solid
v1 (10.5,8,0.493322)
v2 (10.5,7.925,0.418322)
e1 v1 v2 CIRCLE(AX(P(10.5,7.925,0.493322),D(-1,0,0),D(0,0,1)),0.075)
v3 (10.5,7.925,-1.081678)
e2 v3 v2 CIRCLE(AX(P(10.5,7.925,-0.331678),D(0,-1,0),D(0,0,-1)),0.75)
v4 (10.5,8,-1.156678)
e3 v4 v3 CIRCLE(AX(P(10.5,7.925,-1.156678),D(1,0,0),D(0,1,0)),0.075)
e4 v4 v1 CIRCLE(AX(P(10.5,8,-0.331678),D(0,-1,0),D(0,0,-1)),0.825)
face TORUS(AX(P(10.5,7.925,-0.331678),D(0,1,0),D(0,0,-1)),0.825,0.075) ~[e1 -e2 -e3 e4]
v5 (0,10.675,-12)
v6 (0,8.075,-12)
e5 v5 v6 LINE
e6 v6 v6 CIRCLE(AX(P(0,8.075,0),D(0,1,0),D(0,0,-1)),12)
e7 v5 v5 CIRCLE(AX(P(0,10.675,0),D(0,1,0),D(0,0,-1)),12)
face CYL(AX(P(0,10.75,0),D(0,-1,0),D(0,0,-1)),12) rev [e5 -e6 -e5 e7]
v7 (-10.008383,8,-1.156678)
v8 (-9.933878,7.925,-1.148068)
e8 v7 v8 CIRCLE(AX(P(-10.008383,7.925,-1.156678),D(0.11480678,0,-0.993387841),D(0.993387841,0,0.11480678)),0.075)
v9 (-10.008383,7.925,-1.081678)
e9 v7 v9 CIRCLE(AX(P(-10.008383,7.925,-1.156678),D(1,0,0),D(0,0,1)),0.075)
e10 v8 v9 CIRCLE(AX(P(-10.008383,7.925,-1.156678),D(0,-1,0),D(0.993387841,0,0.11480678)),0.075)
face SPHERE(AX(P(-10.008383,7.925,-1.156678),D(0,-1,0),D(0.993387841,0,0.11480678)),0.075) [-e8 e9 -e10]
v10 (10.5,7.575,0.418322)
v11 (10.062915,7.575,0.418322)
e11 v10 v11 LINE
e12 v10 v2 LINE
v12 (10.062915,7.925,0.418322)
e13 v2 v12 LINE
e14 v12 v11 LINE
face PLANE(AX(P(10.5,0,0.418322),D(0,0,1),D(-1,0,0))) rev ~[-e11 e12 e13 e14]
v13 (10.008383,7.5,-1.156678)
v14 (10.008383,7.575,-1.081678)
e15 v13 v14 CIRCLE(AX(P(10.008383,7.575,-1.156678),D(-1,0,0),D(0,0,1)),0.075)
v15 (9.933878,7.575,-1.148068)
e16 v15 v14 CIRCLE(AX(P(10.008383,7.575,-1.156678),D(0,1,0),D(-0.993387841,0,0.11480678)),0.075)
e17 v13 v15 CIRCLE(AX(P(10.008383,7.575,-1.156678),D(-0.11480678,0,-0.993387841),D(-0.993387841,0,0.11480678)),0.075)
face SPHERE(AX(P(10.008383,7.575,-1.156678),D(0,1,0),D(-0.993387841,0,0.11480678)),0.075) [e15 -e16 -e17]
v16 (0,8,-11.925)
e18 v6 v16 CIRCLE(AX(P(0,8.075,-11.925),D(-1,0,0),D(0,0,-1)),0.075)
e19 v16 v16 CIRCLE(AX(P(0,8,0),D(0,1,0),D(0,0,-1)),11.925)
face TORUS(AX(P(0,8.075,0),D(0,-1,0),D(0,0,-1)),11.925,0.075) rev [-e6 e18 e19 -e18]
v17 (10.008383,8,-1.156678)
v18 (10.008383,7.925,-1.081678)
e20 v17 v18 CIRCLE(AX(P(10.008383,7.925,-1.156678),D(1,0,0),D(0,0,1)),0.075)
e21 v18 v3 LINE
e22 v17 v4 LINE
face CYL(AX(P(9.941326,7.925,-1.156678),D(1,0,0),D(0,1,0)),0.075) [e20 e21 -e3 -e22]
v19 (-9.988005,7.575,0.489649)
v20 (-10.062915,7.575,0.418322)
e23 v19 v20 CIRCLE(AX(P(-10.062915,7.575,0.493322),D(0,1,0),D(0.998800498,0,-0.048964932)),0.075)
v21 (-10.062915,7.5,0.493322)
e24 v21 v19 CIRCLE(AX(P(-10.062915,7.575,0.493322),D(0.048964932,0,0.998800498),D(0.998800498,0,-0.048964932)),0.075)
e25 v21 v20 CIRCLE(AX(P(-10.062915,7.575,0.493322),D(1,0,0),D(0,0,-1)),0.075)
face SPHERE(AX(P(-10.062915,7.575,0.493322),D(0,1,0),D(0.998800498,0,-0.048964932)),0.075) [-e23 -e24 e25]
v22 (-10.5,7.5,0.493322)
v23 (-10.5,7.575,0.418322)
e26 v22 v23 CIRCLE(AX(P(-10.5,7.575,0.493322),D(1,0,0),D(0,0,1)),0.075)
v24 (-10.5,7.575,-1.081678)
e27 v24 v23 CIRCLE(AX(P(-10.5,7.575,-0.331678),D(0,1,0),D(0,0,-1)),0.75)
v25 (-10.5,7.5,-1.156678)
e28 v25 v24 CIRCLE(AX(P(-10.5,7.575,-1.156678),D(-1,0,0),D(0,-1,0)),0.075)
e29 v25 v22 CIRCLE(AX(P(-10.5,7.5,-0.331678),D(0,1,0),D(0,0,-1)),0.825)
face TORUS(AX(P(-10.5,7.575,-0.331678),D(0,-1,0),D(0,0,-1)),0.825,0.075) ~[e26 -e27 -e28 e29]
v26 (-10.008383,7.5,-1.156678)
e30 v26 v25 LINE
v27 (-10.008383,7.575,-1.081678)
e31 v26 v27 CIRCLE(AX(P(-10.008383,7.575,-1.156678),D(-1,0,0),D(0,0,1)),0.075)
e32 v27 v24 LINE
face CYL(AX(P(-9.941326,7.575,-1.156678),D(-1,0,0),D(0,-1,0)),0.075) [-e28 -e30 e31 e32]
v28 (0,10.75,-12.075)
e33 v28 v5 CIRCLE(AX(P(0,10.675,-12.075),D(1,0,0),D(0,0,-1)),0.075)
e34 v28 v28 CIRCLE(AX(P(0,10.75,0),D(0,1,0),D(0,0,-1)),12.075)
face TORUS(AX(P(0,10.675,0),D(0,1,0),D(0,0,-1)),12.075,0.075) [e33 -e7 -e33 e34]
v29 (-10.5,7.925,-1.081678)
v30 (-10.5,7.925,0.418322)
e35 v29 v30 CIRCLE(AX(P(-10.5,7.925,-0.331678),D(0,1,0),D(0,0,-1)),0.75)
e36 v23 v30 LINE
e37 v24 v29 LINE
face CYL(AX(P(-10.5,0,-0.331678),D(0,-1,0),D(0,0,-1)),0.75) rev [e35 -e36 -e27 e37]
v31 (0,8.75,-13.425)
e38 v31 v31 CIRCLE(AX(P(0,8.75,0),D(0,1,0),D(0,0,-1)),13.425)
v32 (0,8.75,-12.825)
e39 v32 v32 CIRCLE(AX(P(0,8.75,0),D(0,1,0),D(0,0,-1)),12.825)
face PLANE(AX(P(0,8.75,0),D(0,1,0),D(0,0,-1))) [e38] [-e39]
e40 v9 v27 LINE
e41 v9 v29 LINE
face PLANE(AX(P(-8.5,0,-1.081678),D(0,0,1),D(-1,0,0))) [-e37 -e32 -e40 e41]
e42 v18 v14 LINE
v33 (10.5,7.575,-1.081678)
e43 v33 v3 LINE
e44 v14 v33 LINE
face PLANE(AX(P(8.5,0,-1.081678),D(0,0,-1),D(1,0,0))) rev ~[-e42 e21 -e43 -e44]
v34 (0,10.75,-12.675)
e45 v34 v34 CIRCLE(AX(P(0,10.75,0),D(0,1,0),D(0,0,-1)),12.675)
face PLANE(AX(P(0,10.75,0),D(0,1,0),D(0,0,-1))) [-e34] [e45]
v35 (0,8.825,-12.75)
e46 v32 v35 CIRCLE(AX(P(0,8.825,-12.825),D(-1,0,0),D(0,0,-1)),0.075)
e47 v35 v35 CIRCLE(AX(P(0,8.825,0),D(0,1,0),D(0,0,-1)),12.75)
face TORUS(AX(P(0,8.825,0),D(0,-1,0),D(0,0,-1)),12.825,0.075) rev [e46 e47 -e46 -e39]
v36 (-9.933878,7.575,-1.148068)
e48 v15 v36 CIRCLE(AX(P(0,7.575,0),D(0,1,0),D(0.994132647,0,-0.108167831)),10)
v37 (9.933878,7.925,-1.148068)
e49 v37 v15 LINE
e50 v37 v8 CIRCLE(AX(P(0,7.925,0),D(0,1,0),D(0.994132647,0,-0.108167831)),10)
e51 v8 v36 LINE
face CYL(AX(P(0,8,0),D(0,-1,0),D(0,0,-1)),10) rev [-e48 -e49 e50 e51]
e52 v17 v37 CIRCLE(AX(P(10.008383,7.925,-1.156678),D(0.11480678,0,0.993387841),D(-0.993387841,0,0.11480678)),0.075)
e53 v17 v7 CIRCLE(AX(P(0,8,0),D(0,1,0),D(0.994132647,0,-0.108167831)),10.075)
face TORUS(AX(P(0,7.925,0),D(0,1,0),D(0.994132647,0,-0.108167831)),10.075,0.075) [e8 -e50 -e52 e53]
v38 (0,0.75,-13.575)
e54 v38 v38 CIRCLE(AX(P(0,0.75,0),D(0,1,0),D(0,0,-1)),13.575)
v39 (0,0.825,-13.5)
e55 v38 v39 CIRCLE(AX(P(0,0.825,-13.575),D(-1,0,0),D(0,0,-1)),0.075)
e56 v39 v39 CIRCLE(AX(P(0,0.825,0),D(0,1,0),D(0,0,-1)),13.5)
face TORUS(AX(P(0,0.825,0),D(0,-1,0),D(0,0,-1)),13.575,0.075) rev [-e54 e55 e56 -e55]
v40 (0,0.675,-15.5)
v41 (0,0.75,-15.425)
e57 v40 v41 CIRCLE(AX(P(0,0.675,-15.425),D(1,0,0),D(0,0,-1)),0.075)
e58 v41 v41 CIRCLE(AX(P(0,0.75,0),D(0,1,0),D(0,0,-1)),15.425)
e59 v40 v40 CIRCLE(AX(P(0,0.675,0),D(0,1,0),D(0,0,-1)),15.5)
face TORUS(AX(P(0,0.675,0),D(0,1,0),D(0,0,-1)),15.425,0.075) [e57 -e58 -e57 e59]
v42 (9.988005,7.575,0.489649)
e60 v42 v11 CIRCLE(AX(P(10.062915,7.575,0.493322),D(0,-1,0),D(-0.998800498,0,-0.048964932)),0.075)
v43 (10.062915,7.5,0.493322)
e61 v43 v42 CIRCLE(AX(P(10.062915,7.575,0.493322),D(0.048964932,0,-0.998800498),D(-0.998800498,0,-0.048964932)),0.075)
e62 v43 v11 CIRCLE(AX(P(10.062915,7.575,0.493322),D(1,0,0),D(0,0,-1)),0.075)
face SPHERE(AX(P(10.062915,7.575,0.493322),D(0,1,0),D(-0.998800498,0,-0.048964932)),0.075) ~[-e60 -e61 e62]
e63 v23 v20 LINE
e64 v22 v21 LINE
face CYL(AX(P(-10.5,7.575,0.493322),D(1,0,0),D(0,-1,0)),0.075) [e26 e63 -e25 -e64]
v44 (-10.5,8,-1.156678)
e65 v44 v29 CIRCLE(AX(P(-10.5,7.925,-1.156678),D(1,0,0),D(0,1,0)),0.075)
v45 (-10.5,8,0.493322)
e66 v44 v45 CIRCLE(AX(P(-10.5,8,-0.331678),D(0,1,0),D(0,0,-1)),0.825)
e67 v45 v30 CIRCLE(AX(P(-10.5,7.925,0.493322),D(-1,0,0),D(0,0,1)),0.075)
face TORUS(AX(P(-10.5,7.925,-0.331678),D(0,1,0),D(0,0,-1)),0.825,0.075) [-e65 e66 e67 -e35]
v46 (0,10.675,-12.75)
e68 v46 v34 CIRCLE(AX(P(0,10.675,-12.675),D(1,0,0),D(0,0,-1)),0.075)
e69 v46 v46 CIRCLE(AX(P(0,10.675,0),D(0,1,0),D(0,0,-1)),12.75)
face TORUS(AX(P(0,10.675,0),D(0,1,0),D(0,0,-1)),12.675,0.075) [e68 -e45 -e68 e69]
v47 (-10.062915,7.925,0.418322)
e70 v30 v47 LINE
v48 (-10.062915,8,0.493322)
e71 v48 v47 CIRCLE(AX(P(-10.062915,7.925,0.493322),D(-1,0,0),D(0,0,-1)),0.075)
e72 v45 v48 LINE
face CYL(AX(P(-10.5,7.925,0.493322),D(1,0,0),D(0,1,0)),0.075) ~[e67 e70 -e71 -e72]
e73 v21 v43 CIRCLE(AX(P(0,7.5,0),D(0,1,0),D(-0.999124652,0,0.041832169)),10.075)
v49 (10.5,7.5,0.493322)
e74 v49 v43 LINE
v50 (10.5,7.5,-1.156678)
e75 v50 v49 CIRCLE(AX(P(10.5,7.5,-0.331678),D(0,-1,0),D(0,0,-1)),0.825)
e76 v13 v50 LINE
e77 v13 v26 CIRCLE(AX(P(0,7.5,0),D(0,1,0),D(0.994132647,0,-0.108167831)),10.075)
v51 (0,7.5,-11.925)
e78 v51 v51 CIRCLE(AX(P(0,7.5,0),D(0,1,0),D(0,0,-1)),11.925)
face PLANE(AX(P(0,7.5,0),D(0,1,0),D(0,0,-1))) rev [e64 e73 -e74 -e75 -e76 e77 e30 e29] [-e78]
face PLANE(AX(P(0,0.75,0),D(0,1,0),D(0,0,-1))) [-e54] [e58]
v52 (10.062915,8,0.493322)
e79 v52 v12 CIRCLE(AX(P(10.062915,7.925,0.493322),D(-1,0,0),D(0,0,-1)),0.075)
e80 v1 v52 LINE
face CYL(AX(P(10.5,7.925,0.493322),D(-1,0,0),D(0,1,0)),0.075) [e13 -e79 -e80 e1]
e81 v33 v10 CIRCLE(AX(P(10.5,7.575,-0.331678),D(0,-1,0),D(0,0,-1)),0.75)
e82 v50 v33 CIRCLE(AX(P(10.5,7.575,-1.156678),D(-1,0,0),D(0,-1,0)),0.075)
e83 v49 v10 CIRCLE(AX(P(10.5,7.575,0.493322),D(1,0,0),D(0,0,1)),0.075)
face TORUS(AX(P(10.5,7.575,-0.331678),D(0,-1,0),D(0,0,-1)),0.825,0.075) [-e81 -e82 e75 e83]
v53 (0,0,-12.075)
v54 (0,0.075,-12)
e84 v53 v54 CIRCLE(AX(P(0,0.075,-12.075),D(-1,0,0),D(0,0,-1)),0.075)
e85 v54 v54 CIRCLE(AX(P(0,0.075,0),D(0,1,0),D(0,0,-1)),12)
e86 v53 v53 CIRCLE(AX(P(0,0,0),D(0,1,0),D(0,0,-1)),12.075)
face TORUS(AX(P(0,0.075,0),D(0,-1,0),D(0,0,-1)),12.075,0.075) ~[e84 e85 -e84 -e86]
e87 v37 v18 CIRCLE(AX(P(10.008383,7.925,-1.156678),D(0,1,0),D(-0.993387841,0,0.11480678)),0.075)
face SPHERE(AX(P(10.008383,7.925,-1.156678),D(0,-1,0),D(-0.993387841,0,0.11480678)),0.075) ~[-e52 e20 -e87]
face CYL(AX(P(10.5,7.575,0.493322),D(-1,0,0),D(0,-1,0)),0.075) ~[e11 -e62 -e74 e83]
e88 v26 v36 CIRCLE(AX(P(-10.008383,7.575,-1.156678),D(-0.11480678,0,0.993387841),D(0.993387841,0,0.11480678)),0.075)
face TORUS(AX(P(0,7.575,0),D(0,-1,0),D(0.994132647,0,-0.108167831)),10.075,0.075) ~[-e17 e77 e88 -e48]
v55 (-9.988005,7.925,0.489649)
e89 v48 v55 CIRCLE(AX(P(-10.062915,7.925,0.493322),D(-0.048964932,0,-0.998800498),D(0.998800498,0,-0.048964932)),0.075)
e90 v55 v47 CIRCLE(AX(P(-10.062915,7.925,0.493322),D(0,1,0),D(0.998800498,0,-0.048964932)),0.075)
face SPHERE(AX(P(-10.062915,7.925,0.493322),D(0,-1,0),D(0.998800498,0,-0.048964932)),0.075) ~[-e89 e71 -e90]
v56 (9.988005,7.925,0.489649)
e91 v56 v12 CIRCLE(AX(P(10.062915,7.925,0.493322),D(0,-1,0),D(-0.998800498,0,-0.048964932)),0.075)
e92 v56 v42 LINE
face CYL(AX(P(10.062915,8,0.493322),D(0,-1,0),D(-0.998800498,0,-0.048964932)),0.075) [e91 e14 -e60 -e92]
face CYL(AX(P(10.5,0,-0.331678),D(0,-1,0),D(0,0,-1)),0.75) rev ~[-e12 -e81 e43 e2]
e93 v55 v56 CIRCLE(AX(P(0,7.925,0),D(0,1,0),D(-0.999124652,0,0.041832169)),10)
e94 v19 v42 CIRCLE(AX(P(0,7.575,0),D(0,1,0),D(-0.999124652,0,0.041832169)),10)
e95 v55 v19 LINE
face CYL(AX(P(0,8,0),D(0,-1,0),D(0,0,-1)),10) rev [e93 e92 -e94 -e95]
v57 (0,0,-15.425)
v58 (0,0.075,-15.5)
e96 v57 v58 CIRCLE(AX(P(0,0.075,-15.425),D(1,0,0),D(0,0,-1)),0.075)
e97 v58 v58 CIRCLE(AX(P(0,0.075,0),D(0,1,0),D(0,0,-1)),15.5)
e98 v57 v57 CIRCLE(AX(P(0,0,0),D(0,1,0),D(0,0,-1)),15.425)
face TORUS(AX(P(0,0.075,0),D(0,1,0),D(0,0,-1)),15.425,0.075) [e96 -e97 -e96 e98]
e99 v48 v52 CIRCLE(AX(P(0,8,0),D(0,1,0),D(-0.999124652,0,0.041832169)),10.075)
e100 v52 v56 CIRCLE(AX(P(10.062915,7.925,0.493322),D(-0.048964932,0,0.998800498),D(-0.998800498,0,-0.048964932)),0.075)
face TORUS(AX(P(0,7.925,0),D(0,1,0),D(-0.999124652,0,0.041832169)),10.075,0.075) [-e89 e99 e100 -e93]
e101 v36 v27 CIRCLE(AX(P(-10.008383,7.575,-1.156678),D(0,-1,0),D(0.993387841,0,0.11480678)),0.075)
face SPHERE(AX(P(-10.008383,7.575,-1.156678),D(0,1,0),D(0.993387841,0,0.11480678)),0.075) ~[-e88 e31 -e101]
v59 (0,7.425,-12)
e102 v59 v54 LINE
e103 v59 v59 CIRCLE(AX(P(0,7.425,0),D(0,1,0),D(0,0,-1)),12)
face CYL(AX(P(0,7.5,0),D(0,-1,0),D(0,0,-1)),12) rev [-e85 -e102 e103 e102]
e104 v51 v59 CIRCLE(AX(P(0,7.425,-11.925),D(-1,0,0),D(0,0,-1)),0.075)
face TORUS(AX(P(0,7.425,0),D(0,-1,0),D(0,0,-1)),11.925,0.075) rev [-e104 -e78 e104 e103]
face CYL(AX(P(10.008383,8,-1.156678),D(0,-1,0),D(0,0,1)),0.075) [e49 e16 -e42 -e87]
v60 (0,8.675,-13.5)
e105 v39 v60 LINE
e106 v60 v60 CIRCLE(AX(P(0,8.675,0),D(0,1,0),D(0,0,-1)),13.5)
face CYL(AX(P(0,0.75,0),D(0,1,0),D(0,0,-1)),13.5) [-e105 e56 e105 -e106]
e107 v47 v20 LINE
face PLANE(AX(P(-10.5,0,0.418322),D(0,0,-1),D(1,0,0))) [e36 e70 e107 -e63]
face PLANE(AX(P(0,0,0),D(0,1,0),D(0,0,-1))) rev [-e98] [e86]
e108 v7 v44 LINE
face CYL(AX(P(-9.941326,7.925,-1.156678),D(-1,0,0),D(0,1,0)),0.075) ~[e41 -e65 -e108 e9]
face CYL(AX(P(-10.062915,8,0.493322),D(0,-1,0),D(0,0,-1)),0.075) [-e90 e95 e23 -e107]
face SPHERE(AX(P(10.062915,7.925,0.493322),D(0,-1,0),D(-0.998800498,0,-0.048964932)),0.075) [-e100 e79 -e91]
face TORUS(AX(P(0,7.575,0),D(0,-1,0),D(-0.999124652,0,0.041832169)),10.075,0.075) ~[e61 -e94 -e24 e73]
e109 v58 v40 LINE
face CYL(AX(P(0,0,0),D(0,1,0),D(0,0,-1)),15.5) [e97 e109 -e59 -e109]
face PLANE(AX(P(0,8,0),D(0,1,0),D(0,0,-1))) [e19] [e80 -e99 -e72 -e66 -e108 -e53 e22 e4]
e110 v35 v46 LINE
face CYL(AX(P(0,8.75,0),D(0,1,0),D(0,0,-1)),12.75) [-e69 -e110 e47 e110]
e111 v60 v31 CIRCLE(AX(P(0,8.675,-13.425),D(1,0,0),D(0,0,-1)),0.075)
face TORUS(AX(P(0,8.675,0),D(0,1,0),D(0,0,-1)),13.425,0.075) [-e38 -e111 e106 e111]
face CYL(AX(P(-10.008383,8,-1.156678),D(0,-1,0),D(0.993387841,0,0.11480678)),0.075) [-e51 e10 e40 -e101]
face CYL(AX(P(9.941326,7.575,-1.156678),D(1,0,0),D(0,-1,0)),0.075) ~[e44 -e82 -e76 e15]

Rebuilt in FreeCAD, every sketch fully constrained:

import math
import FreeCAD as App
import Part
import Sketcher

V = App.Vector
Q = App.Units.Quantity


def add_polygon(sketch, points):
    """Adds a closed chain of lines whose ends are joined by coincident constraints."""
    first, n = sketch.GeometryCount, len(points)
    for a, b in zip(points, points[1:] + points[:1]):
        sketch.addGeometry(Part.LineSegment(App.Vector(*a, 0), App.Vector(*b, 0)), False)
    for i in range(n):
        sketch.addConstraint(Sketcher.Constraint("Coincident", first + i, 2, first + (i + 1) % n, 1))

doc = App.newDocument("Part")
params = doc.addObject("Spreadsheet::Sheet", "Params")
for row, (alias, value) in enumerate([
    ("sketch1_width", "2 mm"),
    ("sketch1_height", "8 mm"),
    ("sketch1_width2", "3.5 mm"),
    ("sketch1_height2", "7.5 mm"),
    ("sketch1_height3", "0.5 mm"),
    ("revolution_angle", "360 deg"),
    ("sketch2_width", "2 mm"),
    ("sketch2_radius", "0.75 mm"),
    ("pocket1_length", "8 mm"),
    ("fillet_radius", "0.075 mm"),
], start=1):
    params.set(f"A{row}", alias)
    params.set(f"B{row}", "=" + value)
    params.setAlias(f"B{row}", alias)

body = doc.addObject("PartDesign::Body", "Body")

# Sketch on XY plane
sketch1 = body.newObject("Sketcher::SketchObject", "Sketch")
sketch1.AttachmentSupport = (doc.getObject("XY_Plane"), [""])
sketch1.MapMode = "FlatFace"
add_polygon(sketch1, [(-15.5, 0), (-12, 0), (-12, 7.5), (-10, 7.5), (-10, 8), (-12, 8), (-12, 10.8), (-12.8, 10.8), (-12.8, 8.8), (-13.5, 8.8), (-13.5, 0.8), (-15.5, 0.8)])  # lines 0-11
sketch1.addConstraint(Sketcher.Constraint("Horizontal", 0))
sketch1.addConstraint(Sketcher.Constraint("Vertical", 1))
sketch1.addConstraint(Sketcher.Constraint("Horizontal", 2))
sketch1.addConstraint(Sketcher.Constraint("Vertical", 3))
sketch1.addConstraint(Sketcher.Constraint("Horizontal", 4))
sketch1.addConstraint(Sketcher.Constraint("Vertical", 5))
sketch1.addConstraint(Sketcher.Constraint("Horizontal", 6))
sketch1.addConstraint(Sketcher.Constraint("Vertical", 7))
sketch1.addConstraint(Sketcher.Constraint("Horizontal", 8))
sketch1.addConstraint(Sketcher.Constraint("Vertical", 9))
sketch1.addConstraint(Sketcher.Constraint("Horizontal", 10))
sketch1.addConstraint(Sketcher.Constraint("Vertical", 11))
sketch1.addConstraint(Sketcher.Constraint("PointOnObject", 0, 2, -1))
sketch1.addConstraint(Sketcher.Constraint("Vertical", 1, 2, 4, 2))
sketch1.addConstraint(Sketcher.Constraint("Equal", 6, 8))
sketch1.addConstraint(Sketcher.Constraint("Equal", 4, 10))
sketch1.addConstraint(Sketcher.Constraint("Equal", 10, 7))
sketch1.addConstraint(Sketcher.Constraint("Equal", 8, 11))
sketch1.addConstraint(Sketcher.Constraint("DistanceX", 2, 1, 2, 2, Q("2 mm")))
sketch1.addConstraint(Sketcher.Constraint("DistanceY", 9, 2, 9, 1, Q("8 mm")))
sketch1.addConstraint(Sketcher.Constraint("DistanceX", 0, 1, 0, 2, Q("3.5 mm")))
sketch1.addConstraint(Sketcher.Constraint("DistanceY", 1, 1, 1, 2, Q("7.5 mm")))
sketch1.addConstraint(Sketcher.Constraint("DistanceY", 3, 1, 3, 2, Q("0.5 mm")))
sketch1.addConstraint(Sketcher.Constraint("DistanceX", 0, 2, -1, 1, Q("12 mm")))
sketch1.setExpression("Constraints[30]", "Params.sketch1_width")
sketch1.setExpression("Constraints[31]", "Params.sketch1_height")
sketch1.setExpression("Constraints[32]", "Params.sketch1_width2")
sketch1.setExpression("Constraints[33]", "Params.sketch1_height2")
sketch1.setExpression("Constraints[34]", "Params.sketch1_height3")
revolution = body.newObject("PartDesign::Revolution", "Revolution")
revolution.Profile = sketch1
revolution.ReferenceAxis = (sketch1, ["V_Axis"])
revolution.setExpression("Angle", "Params.revolution_angle")

# Sketch on XZ plane
sketch2 = body.newObject("Sketcher::SketchObject", "Sketch001")
sketch2.AttachmentSupport = (doc.getObject("XZ_Plane"), [""])
sketch2.MapMode = "FlatFace"
sketch2.addGeometry(Part.LineSegment(V(-8.5, 0.4, 0), V(-8.5, -1.1, 0)), False)
sketch2.addGeometry(Part.LineSegment(V(-8.5, -1.1, 0), V(-10.5, -1.1, 0)), False)
sketch2.addGeometry(Part.ArcOfCircle(Part.Circle(V(-10.5, -0.3, 0), V(0, 0, 1), 0.8), math.radians(90), math.radians(270)), False)
sketch2.addGeometry(Part.LineSegment(V(-10.5, 0.4, 0), V(-8.5, 0.4, 0)), False)
sketch2.addGeometry(Part.LineSegment(V(8.5, 0.4, 0), V(10.5, 0.4, 0)), False)
sketch2.addGeometry(Part.ArcOfCircle(Part.Circle(V(10.5, -0.3, 0), V(0, 0, 1), 0.8), math.radians(-90), math.radians(90)), False)
sketch2.addGeometry(Part.LineSegment(V(10.5, -1.1, 0), V(8.5, -1.1, 0)), False)
sketch2.addGeometry(Part.LineSegment(V(8.5, -1.1, 0), V(8.5, 0.4, 0)), False)
sketch2.addConstraint(Sketcher.Constraint("Coincident", 0, 2, 1, 1))
sketch2.addConstraint(Sketcher.Constraint("Tangent", 1, 2, 2, 2))
sketch2.addConstraint(Sketcher.Constraint("Tangent", 2, 1, 3, 1))
sketch2.addConstraint(Sketcher.Constraint("Coincident", 3, 2, 0, 1))
sketch2.addConstraint(Sketcher.Constraint("Tangent", 4, 2, 5, 2))
sketch2.addConstraint(Sketcher.Constraint("Tangent", 5, 1, 6, 1))
sketch2.addConstraint(Sketcher.Constraint("Coincident", 6, 2, 7, 1))
sketch2.addConstraint(Sketcher.Constraint("Coincident", 7, 2, 4, 1))
sketch2.addConstraint(Sketcher.Constraint("Vertical", 0))
sketch2.addConstraint(Sketcher.Constraint("Horizontal", 1))
sketch2.addConstraint(Sketcher.Constraint("Horizontal", 3))
sketch2.addConstraint(Sketcher.Constraint("Horizontal", 4))
sketch2.addConstraint(Sketcher.Constraint("Horizontal", 6))
sketch2.addConstraint(Sketcher.Constraint("Vertical", 7))
sketch2.addConstraint(Sketcher.Constraint("Equal", 2, 5))
sketch2.addConstraint(Sketcher.Constraint("Symmetric", 2, 3, 5, 3, -2))
sketch2.addConstraint(Sketcher.Constraint("Equal", 3, 4))
sketch2.addConstraint(Sketcher.Constraint("DistanceX", 1, 2, 1, 1, Q("2 mm")))
sketch2.addConstraint(Sketcher.Constraint("Radius", 2, Q("0.75 mm")))
sketch2.addConstraint(Sketcher.Constraint("DistanceX", 2, 3, 5, 3, Q("21 mm")))
sketch2.addConstraint(Sketcher.Constraint("DistanceY", 2, 3, -1, 1, Q("0.331678 mm")))
sketch2.setExpression("Constraints[17]", "Params.sketch2_width")
sketch2.setExpression("Constraints[18]", "Params.sketch2_radius")
pocket1 = body.newObject("PartDesign::Pocket", "Pocket")
pocket1.Profile = sketch2
pocket1.setExpression("Length", "Params.pocket1_length")
doc.recompute()

fillet = body.newObject("PartDesign::Fillet", "Fillet")
fillet.Base = (pocket1, ["Edge1"])
fillet.UseAllEdges = True
fillet.setExpression("Radius", "Params.fillet_radius")

doc.recompute()
